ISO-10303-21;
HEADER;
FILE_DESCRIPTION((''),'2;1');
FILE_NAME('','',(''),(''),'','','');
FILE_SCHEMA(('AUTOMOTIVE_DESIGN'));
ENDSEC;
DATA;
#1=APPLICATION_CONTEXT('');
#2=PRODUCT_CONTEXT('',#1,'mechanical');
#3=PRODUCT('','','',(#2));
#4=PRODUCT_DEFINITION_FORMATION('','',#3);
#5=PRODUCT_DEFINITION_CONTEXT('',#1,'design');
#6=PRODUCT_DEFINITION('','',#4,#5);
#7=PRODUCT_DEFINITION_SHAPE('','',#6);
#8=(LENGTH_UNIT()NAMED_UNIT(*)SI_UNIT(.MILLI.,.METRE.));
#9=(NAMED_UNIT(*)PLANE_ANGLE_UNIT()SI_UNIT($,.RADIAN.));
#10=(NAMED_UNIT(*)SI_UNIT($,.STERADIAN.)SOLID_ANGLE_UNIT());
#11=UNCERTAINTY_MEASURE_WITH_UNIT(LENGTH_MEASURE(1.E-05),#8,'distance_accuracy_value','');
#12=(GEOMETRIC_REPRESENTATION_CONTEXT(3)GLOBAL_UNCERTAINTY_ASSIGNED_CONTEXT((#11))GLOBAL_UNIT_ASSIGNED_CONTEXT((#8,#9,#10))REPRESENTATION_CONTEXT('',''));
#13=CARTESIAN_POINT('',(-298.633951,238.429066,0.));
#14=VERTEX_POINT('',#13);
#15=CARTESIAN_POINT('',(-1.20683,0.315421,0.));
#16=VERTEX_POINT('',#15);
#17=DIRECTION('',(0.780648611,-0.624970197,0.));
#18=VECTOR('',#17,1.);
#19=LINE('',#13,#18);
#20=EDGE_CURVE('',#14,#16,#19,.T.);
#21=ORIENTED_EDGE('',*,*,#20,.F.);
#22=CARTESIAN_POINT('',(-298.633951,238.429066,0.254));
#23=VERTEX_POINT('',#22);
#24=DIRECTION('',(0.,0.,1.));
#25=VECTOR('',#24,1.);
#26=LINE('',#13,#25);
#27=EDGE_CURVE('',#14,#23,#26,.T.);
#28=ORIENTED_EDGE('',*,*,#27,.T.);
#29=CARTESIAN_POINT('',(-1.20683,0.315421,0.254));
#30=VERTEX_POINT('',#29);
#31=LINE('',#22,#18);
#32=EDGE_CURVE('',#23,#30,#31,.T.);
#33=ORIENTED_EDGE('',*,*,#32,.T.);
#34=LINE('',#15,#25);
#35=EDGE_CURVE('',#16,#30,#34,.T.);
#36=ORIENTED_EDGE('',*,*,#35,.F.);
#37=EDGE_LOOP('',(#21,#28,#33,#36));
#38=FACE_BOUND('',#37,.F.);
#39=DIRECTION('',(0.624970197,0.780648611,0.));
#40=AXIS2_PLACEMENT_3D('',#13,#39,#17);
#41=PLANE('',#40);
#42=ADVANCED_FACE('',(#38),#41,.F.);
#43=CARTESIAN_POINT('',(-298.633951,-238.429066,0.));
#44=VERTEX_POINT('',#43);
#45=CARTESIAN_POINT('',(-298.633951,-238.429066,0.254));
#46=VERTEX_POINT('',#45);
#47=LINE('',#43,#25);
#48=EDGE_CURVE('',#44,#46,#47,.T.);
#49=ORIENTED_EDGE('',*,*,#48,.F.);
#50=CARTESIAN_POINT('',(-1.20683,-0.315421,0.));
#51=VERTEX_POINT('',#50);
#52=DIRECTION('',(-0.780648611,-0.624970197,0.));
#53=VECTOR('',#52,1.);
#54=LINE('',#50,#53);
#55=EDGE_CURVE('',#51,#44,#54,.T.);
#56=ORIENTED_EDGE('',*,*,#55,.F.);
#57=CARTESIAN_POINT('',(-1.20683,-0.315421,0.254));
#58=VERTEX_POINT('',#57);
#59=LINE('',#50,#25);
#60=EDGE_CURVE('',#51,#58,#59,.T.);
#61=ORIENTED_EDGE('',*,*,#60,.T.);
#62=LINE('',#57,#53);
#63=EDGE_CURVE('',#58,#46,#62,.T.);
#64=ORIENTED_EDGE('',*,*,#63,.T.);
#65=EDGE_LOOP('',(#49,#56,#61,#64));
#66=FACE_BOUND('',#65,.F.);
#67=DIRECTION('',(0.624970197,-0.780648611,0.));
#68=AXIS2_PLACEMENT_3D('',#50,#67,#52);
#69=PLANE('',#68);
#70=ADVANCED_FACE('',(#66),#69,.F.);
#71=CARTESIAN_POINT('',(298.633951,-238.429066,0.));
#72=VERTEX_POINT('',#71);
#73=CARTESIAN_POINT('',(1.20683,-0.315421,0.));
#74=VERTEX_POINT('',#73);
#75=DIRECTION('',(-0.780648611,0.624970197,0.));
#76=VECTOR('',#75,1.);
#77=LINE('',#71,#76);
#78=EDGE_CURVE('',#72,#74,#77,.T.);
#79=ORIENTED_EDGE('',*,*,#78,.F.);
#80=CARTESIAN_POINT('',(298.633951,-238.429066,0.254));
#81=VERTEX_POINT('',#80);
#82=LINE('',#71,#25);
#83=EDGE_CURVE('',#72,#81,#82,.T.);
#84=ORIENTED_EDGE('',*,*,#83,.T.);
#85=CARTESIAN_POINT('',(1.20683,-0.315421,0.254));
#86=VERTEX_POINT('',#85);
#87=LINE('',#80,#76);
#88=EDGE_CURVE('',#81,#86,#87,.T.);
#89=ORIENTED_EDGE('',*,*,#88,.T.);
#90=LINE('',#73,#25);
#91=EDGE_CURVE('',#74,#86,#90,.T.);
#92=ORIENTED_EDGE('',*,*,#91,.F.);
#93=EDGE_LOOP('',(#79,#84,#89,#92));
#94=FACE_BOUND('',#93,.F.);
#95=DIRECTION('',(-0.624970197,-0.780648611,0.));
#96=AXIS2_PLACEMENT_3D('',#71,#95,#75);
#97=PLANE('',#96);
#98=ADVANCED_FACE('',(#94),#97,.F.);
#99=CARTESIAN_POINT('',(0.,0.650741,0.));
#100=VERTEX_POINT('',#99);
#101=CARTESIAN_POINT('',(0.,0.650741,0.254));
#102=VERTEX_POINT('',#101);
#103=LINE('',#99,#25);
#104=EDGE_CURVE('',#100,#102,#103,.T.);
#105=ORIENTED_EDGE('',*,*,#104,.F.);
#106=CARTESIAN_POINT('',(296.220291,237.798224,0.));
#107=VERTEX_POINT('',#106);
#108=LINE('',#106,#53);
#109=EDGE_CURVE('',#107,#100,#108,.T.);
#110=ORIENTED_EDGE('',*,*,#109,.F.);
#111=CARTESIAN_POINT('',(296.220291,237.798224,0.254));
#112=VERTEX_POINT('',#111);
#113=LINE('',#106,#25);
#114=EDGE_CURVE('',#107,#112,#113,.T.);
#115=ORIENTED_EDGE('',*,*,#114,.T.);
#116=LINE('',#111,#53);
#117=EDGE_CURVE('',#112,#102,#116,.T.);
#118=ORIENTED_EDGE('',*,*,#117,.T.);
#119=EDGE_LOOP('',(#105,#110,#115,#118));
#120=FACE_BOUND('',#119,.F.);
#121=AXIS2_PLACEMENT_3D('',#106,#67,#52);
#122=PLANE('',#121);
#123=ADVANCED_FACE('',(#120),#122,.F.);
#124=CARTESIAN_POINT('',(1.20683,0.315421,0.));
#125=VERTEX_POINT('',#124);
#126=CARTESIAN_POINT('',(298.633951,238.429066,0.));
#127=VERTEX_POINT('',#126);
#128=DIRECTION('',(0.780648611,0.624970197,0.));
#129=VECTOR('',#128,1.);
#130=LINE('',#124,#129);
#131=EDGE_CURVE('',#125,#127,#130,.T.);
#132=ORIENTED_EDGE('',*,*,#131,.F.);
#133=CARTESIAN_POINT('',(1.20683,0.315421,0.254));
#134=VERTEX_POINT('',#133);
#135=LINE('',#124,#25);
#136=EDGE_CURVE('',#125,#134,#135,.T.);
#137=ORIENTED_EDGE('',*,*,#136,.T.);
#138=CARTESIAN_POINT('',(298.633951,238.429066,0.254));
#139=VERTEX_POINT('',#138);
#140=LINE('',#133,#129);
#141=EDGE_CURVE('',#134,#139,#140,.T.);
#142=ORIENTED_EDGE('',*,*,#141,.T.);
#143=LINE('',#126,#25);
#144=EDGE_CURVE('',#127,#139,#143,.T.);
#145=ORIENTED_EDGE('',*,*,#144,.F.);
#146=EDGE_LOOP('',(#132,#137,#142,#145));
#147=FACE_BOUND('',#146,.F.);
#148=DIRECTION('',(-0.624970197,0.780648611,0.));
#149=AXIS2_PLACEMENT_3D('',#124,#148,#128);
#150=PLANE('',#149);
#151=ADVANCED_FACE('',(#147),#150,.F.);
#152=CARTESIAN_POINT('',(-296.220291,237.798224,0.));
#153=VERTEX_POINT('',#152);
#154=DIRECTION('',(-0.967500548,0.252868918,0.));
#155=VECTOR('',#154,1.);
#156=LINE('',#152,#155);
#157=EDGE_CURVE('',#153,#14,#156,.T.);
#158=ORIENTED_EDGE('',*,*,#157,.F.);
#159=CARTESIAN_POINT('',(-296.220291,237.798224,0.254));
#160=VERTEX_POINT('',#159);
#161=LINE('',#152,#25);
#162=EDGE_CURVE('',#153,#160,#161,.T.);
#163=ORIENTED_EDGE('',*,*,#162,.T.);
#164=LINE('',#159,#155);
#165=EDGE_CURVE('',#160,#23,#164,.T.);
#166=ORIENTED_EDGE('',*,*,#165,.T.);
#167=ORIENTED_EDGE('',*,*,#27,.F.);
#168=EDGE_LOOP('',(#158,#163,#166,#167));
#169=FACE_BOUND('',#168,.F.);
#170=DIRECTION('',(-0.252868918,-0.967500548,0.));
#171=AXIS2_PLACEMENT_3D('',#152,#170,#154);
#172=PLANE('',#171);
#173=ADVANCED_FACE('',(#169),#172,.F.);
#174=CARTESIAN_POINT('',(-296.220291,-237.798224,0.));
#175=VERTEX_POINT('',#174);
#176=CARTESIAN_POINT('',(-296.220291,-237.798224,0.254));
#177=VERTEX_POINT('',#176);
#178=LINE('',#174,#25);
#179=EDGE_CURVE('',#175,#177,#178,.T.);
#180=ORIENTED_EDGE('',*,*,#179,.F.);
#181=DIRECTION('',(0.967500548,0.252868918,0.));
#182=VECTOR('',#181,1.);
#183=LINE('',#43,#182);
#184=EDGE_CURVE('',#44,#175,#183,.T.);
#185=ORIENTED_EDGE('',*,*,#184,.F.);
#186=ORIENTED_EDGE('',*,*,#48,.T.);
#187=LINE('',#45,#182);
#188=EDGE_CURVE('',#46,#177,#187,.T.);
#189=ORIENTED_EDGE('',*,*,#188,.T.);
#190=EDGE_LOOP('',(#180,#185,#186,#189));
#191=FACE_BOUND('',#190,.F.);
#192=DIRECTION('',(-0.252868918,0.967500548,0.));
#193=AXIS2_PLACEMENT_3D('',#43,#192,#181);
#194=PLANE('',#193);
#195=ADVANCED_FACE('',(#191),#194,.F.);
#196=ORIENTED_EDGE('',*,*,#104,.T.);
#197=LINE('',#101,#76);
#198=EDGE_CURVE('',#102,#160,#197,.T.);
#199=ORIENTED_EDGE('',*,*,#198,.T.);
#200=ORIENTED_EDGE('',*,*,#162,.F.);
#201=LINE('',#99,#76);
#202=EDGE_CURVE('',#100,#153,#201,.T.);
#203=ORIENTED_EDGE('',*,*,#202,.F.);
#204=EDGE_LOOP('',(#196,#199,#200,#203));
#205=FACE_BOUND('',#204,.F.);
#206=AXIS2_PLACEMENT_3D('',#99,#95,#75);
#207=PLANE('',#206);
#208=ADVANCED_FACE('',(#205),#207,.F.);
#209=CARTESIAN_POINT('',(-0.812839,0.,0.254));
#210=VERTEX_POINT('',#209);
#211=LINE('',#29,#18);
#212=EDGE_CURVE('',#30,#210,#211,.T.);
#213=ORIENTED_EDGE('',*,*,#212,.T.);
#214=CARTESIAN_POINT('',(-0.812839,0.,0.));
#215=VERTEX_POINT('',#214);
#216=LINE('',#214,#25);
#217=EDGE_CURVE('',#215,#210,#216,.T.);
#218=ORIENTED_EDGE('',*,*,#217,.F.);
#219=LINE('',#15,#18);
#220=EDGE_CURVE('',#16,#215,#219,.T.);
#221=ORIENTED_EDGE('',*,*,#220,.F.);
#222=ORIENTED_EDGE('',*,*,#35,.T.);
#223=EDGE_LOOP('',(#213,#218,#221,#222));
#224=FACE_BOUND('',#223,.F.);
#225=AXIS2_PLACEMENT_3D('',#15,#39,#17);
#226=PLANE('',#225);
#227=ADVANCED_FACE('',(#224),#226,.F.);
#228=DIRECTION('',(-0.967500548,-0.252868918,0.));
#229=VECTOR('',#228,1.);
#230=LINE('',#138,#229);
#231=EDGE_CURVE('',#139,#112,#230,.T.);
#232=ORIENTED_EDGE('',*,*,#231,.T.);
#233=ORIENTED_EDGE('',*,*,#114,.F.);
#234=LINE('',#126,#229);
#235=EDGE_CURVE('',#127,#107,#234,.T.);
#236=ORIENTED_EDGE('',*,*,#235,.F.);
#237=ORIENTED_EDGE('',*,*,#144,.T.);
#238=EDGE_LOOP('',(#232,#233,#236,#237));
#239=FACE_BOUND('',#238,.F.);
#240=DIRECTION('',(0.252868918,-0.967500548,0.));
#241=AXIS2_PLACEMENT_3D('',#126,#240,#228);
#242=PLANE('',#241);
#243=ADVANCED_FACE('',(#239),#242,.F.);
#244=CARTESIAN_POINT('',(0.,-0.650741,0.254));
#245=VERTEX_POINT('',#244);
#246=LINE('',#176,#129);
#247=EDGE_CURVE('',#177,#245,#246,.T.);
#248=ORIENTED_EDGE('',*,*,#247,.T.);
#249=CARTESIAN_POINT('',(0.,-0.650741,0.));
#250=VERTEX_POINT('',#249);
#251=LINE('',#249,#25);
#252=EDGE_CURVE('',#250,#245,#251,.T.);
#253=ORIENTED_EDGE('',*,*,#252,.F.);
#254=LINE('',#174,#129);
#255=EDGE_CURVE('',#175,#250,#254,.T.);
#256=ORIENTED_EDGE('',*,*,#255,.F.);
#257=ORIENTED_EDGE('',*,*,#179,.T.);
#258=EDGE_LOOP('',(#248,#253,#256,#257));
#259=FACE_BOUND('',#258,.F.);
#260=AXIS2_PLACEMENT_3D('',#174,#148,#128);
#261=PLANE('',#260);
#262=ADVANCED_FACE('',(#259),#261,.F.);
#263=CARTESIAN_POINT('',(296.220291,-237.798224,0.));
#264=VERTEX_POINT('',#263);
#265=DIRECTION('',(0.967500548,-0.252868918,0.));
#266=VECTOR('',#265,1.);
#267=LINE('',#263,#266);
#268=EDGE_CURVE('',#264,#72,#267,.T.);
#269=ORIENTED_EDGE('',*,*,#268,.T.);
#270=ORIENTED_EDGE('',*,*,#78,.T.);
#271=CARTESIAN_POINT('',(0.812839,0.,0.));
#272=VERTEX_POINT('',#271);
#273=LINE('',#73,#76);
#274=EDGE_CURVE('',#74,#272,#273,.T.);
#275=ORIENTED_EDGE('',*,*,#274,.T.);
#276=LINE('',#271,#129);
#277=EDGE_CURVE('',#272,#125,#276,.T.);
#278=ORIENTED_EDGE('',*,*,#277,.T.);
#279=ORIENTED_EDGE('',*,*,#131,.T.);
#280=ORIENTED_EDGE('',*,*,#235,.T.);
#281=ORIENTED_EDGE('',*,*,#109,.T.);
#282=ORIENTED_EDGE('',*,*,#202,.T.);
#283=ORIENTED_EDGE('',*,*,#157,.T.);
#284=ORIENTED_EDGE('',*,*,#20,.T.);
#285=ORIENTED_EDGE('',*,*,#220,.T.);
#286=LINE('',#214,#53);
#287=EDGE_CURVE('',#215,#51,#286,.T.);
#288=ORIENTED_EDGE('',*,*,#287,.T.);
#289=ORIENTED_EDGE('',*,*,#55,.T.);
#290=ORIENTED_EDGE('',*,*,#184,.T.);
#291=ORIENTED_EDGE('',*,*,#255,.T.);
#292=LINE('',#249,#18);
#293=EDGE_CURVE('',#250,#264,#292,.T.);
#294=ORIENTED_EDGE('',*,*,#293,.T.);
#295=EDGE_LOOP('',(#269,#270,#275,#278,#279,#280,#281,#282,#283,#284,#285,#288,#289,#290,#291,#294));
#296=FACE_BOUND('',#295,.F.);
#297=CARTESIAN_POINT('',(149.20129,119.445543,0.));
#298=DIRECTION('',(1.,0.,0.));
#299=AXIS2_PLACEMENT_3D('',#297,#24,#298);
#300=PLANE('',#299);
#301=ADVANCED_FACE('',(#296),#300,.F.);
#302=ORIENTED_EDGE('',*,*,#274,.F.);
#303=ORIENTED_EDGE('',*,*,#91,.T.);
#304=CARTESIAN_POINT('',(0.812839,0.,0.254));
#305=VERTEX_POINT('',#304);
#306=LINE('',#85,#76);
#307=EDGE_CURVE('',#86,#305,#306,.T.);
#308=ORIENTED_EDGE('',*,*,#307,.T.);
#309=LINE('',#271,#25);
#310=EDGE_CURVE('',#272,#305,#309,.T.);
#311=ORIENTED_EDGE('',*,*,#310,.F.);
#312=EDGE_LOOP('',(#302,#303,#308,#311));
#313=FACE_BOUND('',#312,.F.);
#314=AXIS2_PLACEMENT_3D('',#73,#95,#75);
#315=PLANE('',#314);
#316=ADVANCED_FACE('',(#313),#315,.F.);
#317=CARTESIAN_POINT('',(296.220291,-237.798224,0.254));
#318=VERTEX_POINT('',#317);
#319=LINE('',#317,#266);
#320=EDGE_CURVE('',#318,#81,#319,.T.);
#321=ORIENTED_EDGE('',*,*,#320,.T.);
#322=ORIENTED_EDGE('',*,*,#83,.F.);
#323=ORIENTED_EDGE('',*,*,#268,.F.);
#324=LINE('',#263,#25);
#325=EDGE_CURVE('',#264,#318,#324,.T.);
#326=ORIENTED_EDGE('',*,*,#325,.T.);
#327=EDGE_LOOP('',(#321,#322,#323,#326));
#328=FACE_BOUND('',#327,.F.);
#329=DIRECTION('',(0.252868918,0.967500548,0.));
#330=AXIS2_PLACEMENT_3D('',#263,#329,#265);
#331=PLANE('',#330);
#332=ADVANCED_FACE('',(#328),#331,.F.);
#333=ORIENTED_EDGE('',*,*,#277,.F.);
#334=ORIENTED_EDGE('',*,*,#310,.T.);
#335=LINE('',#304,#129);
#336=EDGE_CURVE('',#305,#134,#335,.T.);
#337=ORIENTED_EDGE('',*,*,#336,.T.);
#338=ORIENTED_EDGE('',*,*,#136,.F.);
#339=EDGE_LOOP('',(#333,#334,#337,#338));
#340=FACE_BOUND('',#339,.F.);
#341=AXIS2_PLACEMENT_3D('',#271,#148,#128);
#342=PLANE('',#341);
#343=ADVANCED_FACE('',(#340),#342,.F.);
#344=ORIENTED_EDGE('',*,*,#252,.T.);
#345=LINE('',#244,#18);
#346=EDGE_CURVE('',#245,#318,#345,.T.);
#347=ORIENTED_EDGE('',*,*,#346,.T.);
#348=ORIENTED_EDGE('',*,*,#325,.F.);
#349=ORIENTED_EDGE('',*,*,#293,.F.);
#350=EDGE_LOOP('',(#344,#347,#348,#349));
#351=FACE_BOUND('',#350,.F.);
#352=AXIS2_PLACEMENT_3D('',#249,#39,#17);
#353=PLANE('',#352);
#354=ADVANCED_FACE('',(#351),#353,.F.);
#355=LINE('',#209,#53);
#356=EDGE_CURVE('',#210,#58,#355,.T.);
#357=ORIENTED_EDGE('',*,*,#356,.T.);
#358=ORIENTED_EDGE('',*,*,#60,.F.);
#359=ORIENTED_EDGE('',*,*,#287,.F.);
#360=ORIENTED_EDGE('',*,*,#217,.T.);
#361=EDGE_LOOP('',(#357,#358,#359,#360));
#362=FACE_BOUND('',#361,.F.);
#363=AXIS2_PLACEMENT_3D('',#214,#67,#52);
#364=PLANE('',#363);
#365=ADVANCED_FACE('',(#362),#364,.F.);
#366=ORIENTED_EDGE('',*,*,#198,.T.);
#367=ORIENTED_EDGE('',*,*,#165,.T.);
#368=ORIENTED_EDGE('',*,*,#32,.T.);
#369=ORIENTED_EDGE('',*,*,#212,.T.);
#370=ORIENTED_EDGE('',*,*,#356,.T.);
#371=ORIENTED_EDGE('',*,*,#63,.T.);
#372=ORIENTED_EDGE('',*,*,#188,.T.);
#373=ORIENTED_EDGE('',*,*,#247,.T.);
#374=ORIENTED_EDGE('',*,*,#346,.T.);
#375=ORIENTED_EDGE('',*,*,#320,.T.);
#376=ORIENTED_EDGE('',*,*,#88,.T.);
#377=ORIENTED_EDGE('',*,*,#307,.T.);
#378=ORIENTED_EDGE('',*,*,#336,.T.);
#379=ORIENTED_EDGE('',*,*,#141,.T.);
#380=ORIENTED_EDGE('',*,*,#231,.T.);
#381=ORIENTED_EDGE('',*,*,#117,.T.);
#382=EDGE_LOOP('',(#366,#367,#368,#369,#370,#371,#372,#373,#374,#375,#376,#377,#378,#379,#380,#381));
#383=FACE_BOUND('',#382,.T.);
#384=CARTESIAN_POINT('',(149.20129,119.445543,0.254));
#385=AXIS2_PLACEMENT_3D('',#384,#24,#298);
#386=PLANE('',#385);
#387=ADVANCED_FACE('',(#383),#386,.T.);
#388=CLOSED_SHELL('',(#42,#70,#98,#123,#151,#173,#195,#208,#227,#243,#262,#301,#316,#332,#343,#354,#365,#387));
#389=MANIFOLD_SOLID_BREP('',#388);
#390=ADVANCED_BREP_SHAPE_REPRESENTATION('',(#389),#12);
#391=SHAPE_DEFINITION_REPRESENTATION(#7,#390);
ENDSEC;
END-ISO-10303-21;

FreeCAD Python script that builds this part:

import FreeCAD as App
import Part
import Sketcher

V = App.Vector
Q = App.Units.Quantity


def add_polygon(sketch, points):
    """Adds a closed chain of lines whose ends are joined by coincident constraints."""
    first, n = sketch.GeometryCount, len(points)
    for a, b in zip(points, points[1:] + points[:1]):
        sketch.addGeometry(Part.LineSegment(App.Vector(*a, 0), App.Vector(*b, 0)), False)
    for i in range(n):
        sketch.addConstraint(Sketcher.Constraint("Coincident", first + i, 2, first + (i + 1) % n, 1))

doc = App.newDocument("Part")
params = doc.addObject("Spreadsheet::Sheet", "Params")
for row, (alias, value) in enumerate([
    ("sketch1_length", "15 in"),
    ("pad1_length", "0.01 in"),
], start=1):
    params.set(f"A{row}", alias)
    params.set(f"B{row}", "=" + value)
    params.setAlias(f"B{row}", alias)

body = doc.addObject("PartDesign::Body", "Body")

# Sketch on XY plane
sketch1 = doc.addObject("Sketcher::SketchObject", "Sketch")
body.addObject(sketch1)
sketch1.AttachmentSupport = (doc.XY_Plane, [""])
sketch1.MapMode = "FlatFace"
add_polygon(sketch1, [(0.8, 0), (1.2, 0.3), (298.6, 238.4), (296.2, 237.8), (0, 0.7), (-296.2, 237.8), (-298.6, 238.4), (-1.2, 0.3), (-0.8, 0), (-1.2, -0.3), (-298.6, -238.4), (-296.2, -237.8), (0, -0.7), (296.2, -237.8), (298.6, -238.4), (1.2, -0.3)])  # lines 0-15
sketch1.addConstraint(Sketcher.Constraint("Symmetric", 0, 2, 8, 2, -1, 1))
sketch1.addConstraint(Sketcher.Constraint("Symmetric", 1, 2, 9, 2, -1, 1))
sketch1.addConstraint(Sketcher.Constraint("Symmetric", 2, 2, 10, 2, -1, 1))
sketch1.addConstraint(Sketcher.Constraint("Symmetric", 3, 2, 11, 2, -1, 1))
sketch1.addConstraint(Sketcher.Constraint("Symmetric", 4, 2, 12, 2, -1, 1))
sketch1.addConstraint(Sketcher.Constraint("Symmetric", 5, 2, 13, 2, -1, 1))
sketch1.addConstraint(Sketcher.Constraint("Symmetric", 6, 2, 14, 2, -1, 1))
sketch1.addConstraint(Sketcher.Constraint("Symmetric", 7, 2, 15, 2, -1, 1))
sketch1.addConstraint(Sketcher.Constraint("Symmetric", 2, 2, 4, 2, -2))
sketch1.addConstraint(Sketcher.Constraint("Symmetric", 1, 2, 5, 2, -2))
sketch1.addConstraint(Sketcher.Constraint("Symmetric", 0, 2, 6, 2, -2))
sketch1.addConstraint(Sketcher.Constraint("PointOnObject", 3, 2, -2))
sketch1.addConstraint(Sketcher.Constraint("PointOnObject", 7, 2, -1))
sketch1.addConstraint(Sketcher.Constraint("Parallel", 0, 1))
sketch1.addConstraint(Sketcher.Constraint("Parallel", 1, 3))
sketch1.addConstraint(Sketcher.Constraint("Distance", 1, Q("15 in")))
sketch1.addConstraint(Sketcher.Constraint("Angle", 1, Q("38.68 deg")))
sketch1.addConstraint(Sketcher.Constraint("DistanceX", 5, 2, 1, 2, 597.267901))
sketch1.addConstraint(Sketcher.Constraint("DistanceY", -1, 1, 0, 2, 0.315421))
sketch1.addConstraint(Sketcher.Constraint("DistanceX", -1, 1, 2, 2, 296.220291))
sketch1.addConstraint(Sketcher.Constraint("DistanceY", -1, 1, 3, 2, 0.650741))
sketch1.setExpression("Constraints[31]", "Params.sketch1_length")
pad1 = doc.addObject("PartDesign::Pad", "Pad")
body.addObject(pad1)
pad1.Profile = sketch1
pad1.setExpression("Length", "Params.pad1_length")

doc.recompute()
